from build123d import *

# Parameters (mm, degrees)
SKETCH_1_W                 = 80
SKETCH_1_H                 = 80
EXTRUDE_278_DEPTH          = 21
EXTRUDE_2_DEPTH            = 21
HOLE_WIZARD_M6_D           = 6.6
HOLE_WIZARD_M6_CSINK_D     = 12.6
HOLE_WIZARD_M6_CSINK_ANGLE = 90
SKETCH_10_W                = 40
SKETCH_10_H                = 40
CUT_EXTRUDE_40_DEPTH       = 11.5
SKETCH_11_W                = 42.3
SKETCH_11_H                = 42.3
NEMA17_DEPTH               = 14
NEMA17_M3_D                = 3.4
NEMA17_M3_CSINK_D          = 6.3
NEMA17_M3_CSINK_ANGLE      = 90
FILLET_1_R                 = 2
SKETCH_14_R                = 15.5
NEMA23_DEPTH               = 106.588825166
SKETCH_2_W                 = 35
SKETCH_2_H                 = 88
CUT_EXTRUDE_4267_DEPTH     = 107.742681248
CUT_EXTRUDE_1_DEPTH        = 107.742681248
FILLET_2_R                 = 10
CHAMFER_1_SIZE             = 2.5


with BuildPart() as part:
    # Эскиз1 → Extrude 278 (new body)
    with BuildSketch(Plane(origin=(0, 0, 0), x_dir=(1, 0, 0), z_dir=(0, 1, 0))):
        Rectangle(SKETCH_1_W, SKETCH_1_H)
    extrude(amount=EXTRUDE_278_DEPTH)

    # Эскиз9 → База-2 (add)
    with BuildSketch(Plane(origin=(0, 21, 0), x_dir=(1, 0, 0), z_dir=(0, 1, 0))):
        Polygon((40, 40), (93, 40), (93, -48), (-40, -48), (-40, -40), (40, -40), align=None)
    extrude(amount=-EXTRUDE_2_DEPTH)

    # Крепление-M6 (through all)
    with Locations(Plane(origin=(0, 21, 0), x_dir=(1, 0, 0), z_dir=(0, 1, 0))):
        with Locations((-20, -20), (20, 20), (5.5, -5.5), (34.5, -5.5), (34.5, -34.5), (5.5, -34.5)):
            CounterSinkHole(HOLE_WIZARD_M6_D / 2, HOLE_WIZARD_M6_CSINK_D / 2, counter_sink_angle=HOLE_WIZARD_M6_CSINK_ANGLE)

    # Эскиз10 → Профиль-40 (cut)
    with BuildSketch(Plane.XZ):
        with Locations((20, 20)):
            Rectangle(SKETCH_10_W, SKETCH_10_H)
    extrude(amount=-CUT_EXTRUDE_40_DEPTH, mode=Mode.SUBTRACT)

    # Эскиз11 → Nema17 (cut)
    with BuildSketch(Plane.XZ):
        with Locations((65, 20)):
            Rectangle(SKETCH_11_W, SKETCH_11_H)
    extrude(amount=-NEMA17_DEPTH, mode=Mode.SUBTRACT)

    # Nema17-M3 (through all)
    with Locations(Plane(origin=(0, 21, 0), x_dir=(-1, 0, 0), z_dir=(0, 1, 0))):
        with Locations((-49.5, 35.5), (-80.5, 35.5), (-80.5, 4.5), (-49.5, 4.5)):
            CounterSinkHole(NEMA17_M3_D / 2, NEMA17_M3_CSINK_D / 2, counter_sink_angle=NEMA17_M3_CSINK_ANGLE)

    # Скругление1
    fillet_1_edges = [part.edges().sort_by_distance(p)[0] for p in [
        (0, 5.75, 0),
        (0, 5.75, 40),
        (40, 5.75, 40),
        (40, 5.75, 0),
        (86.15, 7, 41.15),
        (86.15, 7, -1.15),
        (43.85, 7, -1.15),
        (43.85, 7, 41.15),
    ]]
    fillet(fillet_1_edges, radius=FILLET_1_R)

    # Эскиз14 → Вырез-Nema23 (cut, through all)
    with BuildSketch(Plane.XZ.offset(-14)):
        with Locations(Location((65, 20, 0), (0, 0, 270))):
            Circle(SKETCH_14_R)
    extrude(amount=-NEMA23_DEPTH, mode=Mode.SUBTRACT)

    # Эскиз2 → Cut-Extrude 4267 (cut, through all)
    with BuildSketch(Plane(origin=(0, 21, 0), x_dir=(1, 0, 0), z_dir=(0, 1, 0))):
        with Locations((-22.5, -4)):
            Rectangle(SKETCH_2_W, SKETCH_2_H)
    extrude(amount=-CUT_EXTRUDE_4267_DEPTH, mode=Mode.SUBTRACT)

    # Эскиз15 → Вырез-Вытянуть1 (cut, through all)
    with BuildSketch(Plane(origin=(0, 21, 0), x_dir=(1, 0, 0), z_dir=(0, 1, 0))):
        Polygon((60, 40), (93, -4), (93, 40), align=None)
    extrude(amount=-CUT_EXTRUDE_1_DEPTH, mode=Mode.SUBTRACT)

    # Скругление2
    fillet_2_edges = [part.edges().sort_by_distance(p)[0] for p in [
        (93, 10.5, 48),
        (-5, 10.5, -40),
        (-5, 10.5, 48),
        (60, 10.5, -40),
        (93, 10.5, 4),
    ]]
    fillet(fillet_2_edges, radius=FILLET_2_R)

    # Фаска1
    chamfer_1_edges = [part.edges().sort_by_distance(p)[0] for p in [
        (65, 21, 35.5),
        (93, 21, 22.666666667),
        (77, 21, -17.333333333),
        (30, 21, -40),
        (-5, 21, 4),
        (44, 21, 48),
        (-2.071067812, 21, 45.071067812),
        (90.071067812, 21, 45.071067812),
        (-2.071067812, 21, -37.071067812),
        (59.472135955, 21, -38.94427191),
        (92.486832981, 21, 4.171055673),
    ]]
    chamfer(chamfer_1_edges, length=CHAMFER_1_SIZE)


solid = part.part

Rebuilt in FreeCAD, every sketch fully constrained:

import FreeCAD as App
import Part
import Sketcher

V = App.Vector
Q = App.Units.Quantity


def edges_at(feature, points):
    """Names of the edges that pass closest to the given points."""
    edges = feature.Shape.Edges
    near = lambda p: min(range(len(edges)), key=lambda i: edges[i].distToShape(Part.Vertex(*p))[0])
    return sorted({f"Edge{near(p) + 1}" for p in points})

doc = App.newDocument("Part")
params = doc.addObject("Spreadsheet::Sheet", "Params")
for row, (alias, value) in enumerate([
    ("sketch1_width", "80 mm"),
    ("pad1_length", "21 mm"),
    ("sketch2_width", "53 mm"),
    ("sketch2_width2", "80 mm"),
    ("sketch2_height", "8 mm"),
    ("pad2_length", "21 mm"),
    ("sketch3_diameter", "6.6 mm"),
    ("hole_diameter", "6.6 mm"),
    ("hole_csink_diameter", "12.6 mm"),
    ("sketch4_width", "40 mm"),
    ("pocket1_length", "11.5 mm"),
    ("sketch5_width", "42.3 mm"),
    ("pocket2_length", "14 mm"),
    ("sketch6_diameter", "3.4 mm"),
    ("hole2_diameter", "3.4 mm"),
    ("hole2_csink_diameter", "6.3 mm"),
    ("fillet_radius", "2 mm"),
    ("sketch7_diameter", "31 mm"),
    ("sketch8_width", "35 mm"),
    ("sketch8_height", "88 mm"),
    ("sketch9_width", "33 mm"),
    ("sketch9_height", "44 mm"),
    ("fillet2_radius", "10 mm"),
    ("chamfer_size", "2.5 mm"),
], start=1):
    params.set(f"A{row}", alias)
    params.set(f"B{row}", "=" + value)
    params.setAlias(f"B{row}", alias)

body = doc.addObject("PartDesign::Body", "Body")

# Sketch on XZ plane
sketch1 = body.newObject("Sketcher::SketchObject", "Sketch")
sketch1.AttachmentSupport = (doc.getObject("XZ_Plane"), [""])
sketch1.MapMode = "FlatFace"
sketch1.addGeometry(Part.LineSegment(V(-40, -40, 0), V(-40, 40, 0)), False)
sketch1.addGeometry(Part.LineSegment(V(-40, 40, 0), V(40, 40, 0)), False)
sketch1.addGeometry(Part.LineSegment(V(40, 40, 0), V(40, -40, 0)), False)
sketch1.addGeometry(Part.LineSegment(V(40, -40, 0), V(-40, -40, 0)), False)
sketch1.addConstraint(Sketcher.Constraint("Coincident", 0, 2, 1, 1))
sketch1.addConstraint(Sketcher.Constraint("Coincident", 1, 2, 2, 1))
sketch1.addConstraint(Sketcher.Constraint("Coincident", 2, 2, 3, 1))
sketch1.addConstraint(Sketcher.Constraint("Coincident", 3, 2, 0, 1))
sketch1.addConstraint(Sketcher.Constraint("Vertical", 0))
sketch1.addConstraint(Sketcher.Constraint("Horizontal", 1))
sketch1.addConstraint(Sketcher.Constraint("Vertical", 2))
sketch1.addConstraint(Sketcher.Constraint("Horizontal", 3))
sketch1.addConstraint(Sketcher.Constraint("Symmetric", 0, 2, 2, 2, -1, 1))
sketch1.addConstraint(Sketcher.Constraint("Equal", 3, 0))
sketch1.addConstraint(Sketcher.Constraint("DistanceX", 1, 1, 1, 2, Q("80 mm")))
sketch1.setExpression("Constraints[10]", "Params.sketch1_width")
pad1 = body.newObject("PartDesign::Pad", "Pad")
pad1.Profile = sketch1
pad1.setExpression("Length", "Params.pad1_length")
pad1.Reversed = True

# Sketch on XZ plane
sketch2 = body.newObject("Sketcher::SketchObject", "Sketch001")
sketch2.AttachmentSupport = (doc.getObject("XZ_Plane"), [""])
sketch2.MapMode = "FlatFace"
sketch2.AttachmentOffset = App.Placement(V(0, 0, -21), App.Rotation())
sketch2.addGeometry(Part.LineSegment(V(93, -40, 0), V(40, -40, 0)), False)
sketch2.addGeometry(Part.LineSegment(V(40, -40, 0), V(40, 40, 0)), False)
sketch2.addGeometry(Part.LineSegment(V(40, 40, 0), V(-40, 40, 0)), False)
sketch2.addGeometry(Part.LineSegment(V(-40, 40, 0), V(-40, 48, 0)), False)
sketch2.addGeometry(Part.LineSegment(V(-40, 48, 0), V(93, 48, 0)), False)
sketch2.addGeometry(Part.LineSegment(V(93, 48, 0), V(93, -40, 0)), False)
sketch2.addConstraint(Sketcher.Constraint("Coincident", 0, 2, 1, 1))
sketch2.addConstraint(Sketcher.Constraint("Coincident", 1, 2, 2, 1))
sketch2.addConstraint(Sketcher.Constraint("Coincident", 2, 2, 3, 1))
sketch2.addConstraint(Sketcher.Constraint("Coincident", 3, 2, 4, 1))
sketch2.addConstraint(Sketcher.Constraint("Coincident", 4, 2, 5, 1))
sketch2.addConstraint(Sketcher.Constraint("Coincident", 5, 2, 0, 1))
sketch2.addConstraint(Sketcher.Constraint("Horizontal", 0))
sketch2.addConstraint(Sketcher.Constraint("Vertical", 1))
sketch2.addConstraint(Sketcher.Constraint("Horizontal", 2))
sketch2.addConstraint(Sketcher.Constraint("Vertical", 3))
sketch2.addConstraint(Sketcher.Constraint("Horizontal", 4))
sketch2.addConstraint(Sketcher.Constraint("Vertical", 5))
sketch2.addConstraint(Sketcher.Constraint("Symmetric", 0, 2, 2, 2, -1, 1))
sketch2.addConstraint(Sketcher.Constraint("Equal", 2, 1))
sketch2.addConstraint(Sketcher.Constraint("DistanceX", 0, 2, 0, 1, Q("53 mm")))
sketch2.addConstraint(Sketcher.Constraint("DistanceX", 2, 2, 2, 1, Q("80 mm")))
sketch2.addConstraint(Sketcher.Constraint("DistanceY", 3, 1, 3, 2, Q("8 mm")))
sketch2.setExpression("Constraints[14]", "Params.sketch2_width")
sketch2.setExpression("Constraints[15]", "Params.sketch2_width2")
sketch2.setExpression("Constraints[16]", "Params.sketch2_height")
pad2 = body.newObject("PartDesign::Pad", "Pad001")
pad2.Profile = sketch2
pad2.setExpression("Length", "Params.pad2_length")

# Sketch on XZ plane
sketch3 = body.newObject("Sketcher::SketchObject", "Sketch002")
sketch3.AttachmentSupport = (doc.getObject("XZ_Plane"), [""])
sketch3.MapMode = "FlatFace"
sketch3.AttachmentOffset = App.Placement(V(0, 0, -21), App.Rotation())
sketch3.addGeometry(Part.Circle(V(-20, 20, 0), V(0, 0, 1), 3.3), False)
sketch3.addGeometry(Part.Circle(V(20, -20, 0), V(0, 0, 1), 3.3), False)
sketch3.addGeometry(Part.Circle(V(5.5, 5.5, 0), V(0, 0, 1), 3.3), False)
sketch3.addGeometry(Part.Circle(V(34.5, 5.5, 0), V(0, 0, 1), 3.3), False)
sketch3.addGeometry(Part.Circle(V(34.5, 34.5, 0), V(0, 0, 1), 3.3), False)
sketch3.addGeometry(Part.Circle(V(5.5, 34.5, 0), V(0, 0, 1), 3.3), False)
sketch3.addConstraint(Sketcher.Constraint("Equal", 0, 1))
sketch3.addConstraint(Sketcher.Constraint("Equal", 1, 2))
sketch3.addConstraint(Sketcher.Constraint("Equal", 2, 3))
sketch3.addConstraint(Sketcher.Constraint("Equal", 3, 4))
sketch3.addConstraint(Sketcher.Constraint("Equal", 4, 5))
sketch3.addConstraint(Sketcher.Constraint("Symmetric", 0, 3, 1, 3, -1, 1))
sketch3.addConstraint(Sketcher.Constraint("Horizontal", 2, 3, 3, 3))
sketch3.addConstraint(Sketcher.Constraint("Horizontal", 4, 3, 5, 3))
sketch3.addConstraint(Sketcher.Constraint("Vertical", 3, 3, 4, 3))
sketch3.addConstraint(Sketcher.Constraint("Vertical", 2, 3, 5, 3))
sketch3.addConstraint(Sketcher.Constraint("Diameter", 0, Q("6.6 mm")))
sketch3.addConstraint(Sketcher.Constraint("DistanceX", 0, 3, -1, 1, Q("20 mm")))
sketch3.addConstraint(Sketcher.Constraint("DistanceY", -1, 1, 0, 3, Q("20 mm")))
sketch3.addConstraint(Sketcher.Constraint("DistanceX", 2, 3, 3, 3, Q("29 mm")))
sketch3.addConstraint(Sketcher.Constraint("DistanceY", 3, 3, 4, 3, Q("29 mm")))
sketch3.addConstraint(Sketcher.Constraint("DistanceX", -1, 1, 2, 3, Q("5.5 mm")))
sketch3.addConstraint(Sketcher.Constraint("DistanceY", -1, 1, 2, 3, Q("5.5 mm")))
sketch3.setExpression("Constraints[10]", "Params.sketch3_diameter")
doc.recompute()
hole = body.newObject("PartDesign::Hole", "Hole")
hole.Profile = sketch3
hole.ThreadType = "None"
hole.setExpression("Diameter", "Params.hole_diameter")
hole.DepthType = "ThroughAll"
hole.HoleCutType = "Countersink"
hole.setExpression("HoleCutDiameter", "Params.hole_csink_diameter")
hole.HoleCutCountersinkAngle = 90
hole.Reversed = True

# Sketch on XZ plane
sketch4 = body.newObject("Sketcher::SketchObject", "Sketch003")
sketch4.AttachmentSupport = (doc.getObject("XZ_Plane"), [""])
sketch4.MapMode = "FlatFace"
sketch4.addGeometry(Part.LineSegment(V(0, 40, 0), V(0, 0, 0)), False)
sketch4.addGeometry(Part.LineSegment(V(0, 0, 0), V(40, 0, 0)), False)
sketch4.addGeometry(Part.LineSegment(V(40, 0, 0), V(40, 40, 0)), False)
sketch4.addGeometry(Part.LineSegment(V(40, 40, 0), V(0, 40, 0)), False)
sketch4.addConstraint(Sketcher.Constraint("Coincident", 0, 2, 1, 1))
sketch4.addConstraint(Sketcher.Constraint("Coincident", 1, 2, 2, 1))
sketch4.addConstraint(Sketcher.Constraint("Coincident", 2, 2, 3, 1))
sketch4.addConstraint(Sketcher.Constraint("Coincident", 3, 2, 0, 1))
sketch4.addConstraint(Sketcher.Constraint("Vertical", 0))
sketch4.addConstraint(Sketcher.Constraint("Horizontal", 1))
sketch4.addConstraint(Sketcher.Constraint("Vertical", 2))
sketch4.addConstraint(Sketcher.Constraint("Horizontal", 3))
sketch4.addConstraint(Sketcher.Constraint("Coincident", 0, 2, -1, 1))
sketch4.addConstraint(Sketcher.Constraint("Equal", 3, 0))
sketch4.addConstraint(Sketcher.Constraint("DistanceX", 1, 1, 1, 2, Q("40 mm")))
sketch4.setExpression("Constraints[10]", "Params.sketch4_width")
pocket1 = body.newObject("PartDesign::Pocket", "Pocket")
pocket1.Profile = sketch4
pocket1.setExpression("Length", "Params.pocket1_length")

# Sketch on XZ plane
sketch5 = body.newObject("Sketcher::SketchObject", "Sketch004")
sketch5.AttachmentSupport = (doc.getObject("XZ_Plane"), [""])
sketch5.MapMode = "FlatFace"
sketch5.addGeometry(Part.LineSegment(V(44, 41, 0), V(44, -1, 0)), False)
sketch5.addGeometry(Part.LineSegment(V(44, -1, 0), V(86, -1, 0)), False)
sketch5.addGeometry(Part.LineSegment(V(86, -1, 0), V(86, 41, 0)), False)
sketch5.addGeometry(Part.LineSegment(V(86, 41, 0), V(44, 41, 0)), False)
sketch5.addConstraint(Sketcher.Constraint("Coincident", 0, 2, 1, 1))
sketch5.addConstraint(Sketcher.Constraint("Coincident", 1, 2, 2, 1))
sketch5.addConstraint(Sketcher.Constraint("Coincident", 2, 2, 3, 1))
sketch5.addConstraint(Sketcher.Constraint("Coincident", 3, 2, 0, 1))
sketch5.addConstraint(Sketcher.Constraint("Vertical", 0))
sketch5.addConstraint(Sketcher.Constraint("Horizontal", 1))
sketch5.addConstraint(Sketcher.Constraint("Vertical", 2))
sketch5.addConstraint(Sketcher.Constraint("Horizontal", 3))
sketch5.addConstraint(Sketcher.Constraint("Equal", 3, 0))
sketch5.addConstraint(Sketcher.Constraint("DistanceX", 1, 1, 1, 2, Q("42.3 mm")))
sketch5.addConstraint(Sketcher.Constraint("DistanceX", -1, 1, 0, 2, Q("43.85 mm")))
sketch5.addConstraint(Sketcher.Constraint("DistanceY", 0, 2, -1, 1, Q("1.15 mm")))
sketch5.setExpression("Constraints[9]", "Params.sketch5_width")
pocket2 = body.newObject("PartDesign::Pocket", "Pocket001")
pocket2.Profile = sketch5
pocket2.setExpression("Length", "Params.pocket2_length")

# Sketch on XZ plane
sketch6 = body.newObject("Sketcher::SketchObject", "Sketch005")
sketch6.AttachmentSupport = (doc.getObject("XZ_Plane"), [""])
sketch6.MapMode = "FlatFace"
sketch6.AttachmentOffset = App.Placement(V(0, 0, -21), App.Rotation())
sketch6.addGeometry(Part.Circle(V(49.5, 35.5, 0), V(0, 0, 1), 1.7), False)
sketch6.addGeometry(Part.Circle(V(80.5, 35.5, 0), V(0, 0, 1), 1.7), False)
sketch6.addGeometry(Part.Circle(V(80.5, 4.5, 0), V(0, 0, 1), 1.7), False)
sketch6.addGeometry(Part.Circle(V(49.5, 4.5, 0), V(0, 0, 1), 1.7), False)
sketch6.addConstraint(Sketcher.Constraint("Equal", 0, 1))
sketch6.addConstraint(Sketcher.Constraint("Equal", 1, 2))
sketch6.addConstraint(Sketcher.Constraint("Equal", 2, 3))
sketch6.addConstraint(Sketcher.Constraint("Horizontal", 0, 3, 1, 3))
sketch6.addConstraint(Sketcher.Constraint("Horizontal", 2, 3, 3, 3))
sketch6.addConstraint(Sketcher.Constraint("Vertical", 1, 3, 2, 3))
sketch6.addConstraint(Sketcher.Constraint("Vertical", 0, 3, 3, 3))
sketch6.addConstraint(Sketcher.Constraint("Diameter", 0, Q("3.4 mm")))
sketch6.addConstraint(Sketcher.Constraint("DistanceX", 0, 3, 1, 3, Q("31 mm")))
sketch6.addConstraint(Sketcher.Constraint("DistanceY", 2, 3, 1, 3, Q("31 mm")))
sketch6.addConstraint(Sketcher.Constraint("DistanceX", -1, 1, 0, 3, Q("49.5 mm")))
sketch6.addConstraint(Sketcher.Constraint("DistanceY", -1, 1, 0, 3, Q("35.5 mm")))
sketch6.setExpression("Constraints[7]", "Params.sketch6_diameter")
doc.recompute()
hole2 = body.newObject("PartDesign::Hole", "Hole001")
hole2.Profile = sketch6
hole2.ThreadType = "None"
hole2.setExpression("Diameter", "Params.hole2_diameter")
hole2.DepthType = "ThroughAll"
hole2.HoleCutType = "Countersink"
hole2.setExpression("HoleCutDiameter", "Params.hole2_csink_diameter")
hole2.HoleCutCountersinkAngle = 90
hole2.Reversed = True
doc.recompute()

fillet = body.newObject("PartDesign::Fillet", "Fillet")
fillet.Base = (hole2, edges_at(hole2, [
    (0, 5.75, 0),
    (0, 5.75, 40),
    (40, 5.75, 40),
    (40, 5.75, 0),
    (86.15, 7, 41.15),
    (86.15, 7, -1.15),
    (43.85, 7, -1.15),
    (43.85, 7, 41.15),
]))
fillet.setExpression("Radius", "Params.fillet_radius")

# Sketch on XZ plane
sketch7 = body.newObject("Sketcher::SketchObject", "Sketch006")
sketch7.AttachmentSupport = (doc.getObject("XZ_Plane"), [""])
sketch7.MapMode = "FlatFace"
sketch7.AttachmentOffset = App.Placement(V(0, 0, -14), App.Rotation())
sketch7.addGeometry(Part.Circle(V(65, 20, 0), V(0, 0, 1), 16), False)
sketch7.addConstraint(Sketcher.Constraint("Diameter", 0, Q("31 mm")))
sketch7.addConstraint(Sketcher.Constraint("DistanceX", -1, 1, 0, 3, Q("65 mm")))
sketch7.addConstraint(Sketcher.Constraint("DistanceY", -1, 1, 0, 3, Q("20 mm")))
sketch7.setExpression("Constraints[0]", "Params.sketch7_diameter")
pocket3 = body.newObject("PartDesign::Pocket", "Pocket002")
pocket3.Profile = sketch7
pocket3.Type = "ThroughAll"

# Sketch on XZ plane
sketch8 = body.newObject("Sketcher::SketchObject", "Sketch007")
sketch8.AttachmentSupport = (doc.getObject("XZ_Plane"), [""])
sketch8.MapMode = "FlatFace"
sketch8.AttachmentOffset = App.Placement(V(0, 0, -21), App.Rotation())
sketch8.addGeometry(Part.LineSegment(V(-40, -40, 0), V(-40, 48, 0)), False)
sketch8.addGeometry(Part.LineSegment(V(-40, 48, 0), V(-5, 48, 0)), False)
sketch8.addGeometry(Part.LineSegment(V(-5, 48, 0), V(-5, -40, 0)), False)
sketch8.addGeometry(Part.LineSegment(V(-5, -40, 0), V(-40, -40, 0)), False)
sketch8.addConstraint(Sketcher.Constraint("Coincident", 0, 2, 1, 1))
sketch8.addConstraint(Sketcher.Constraint("Coincident", 1, 2, 2, 1))
sketch8.addConstraint(Sketcher.Constraint("Coincident", 2, 2, 3, 1))
sketch8.addConstraint(Sketcher.Constraint("Coincident", 3, 2, 0, 1))
sketch8.addConstraint(Sketcher.Constraint("Vertical", 0))
sketch8.addConstraint(Sketcher.Constraint("Horizontal", 1))
sketch8.addConstraint(Sketcher.Constraint("Vertical", 2))
sketch8.addConstraint(Sketcher.Constraint("Horizontal", 3))
sketch8.addConstraint(Sketcher.Constraint("DistanceX", 1, 1, 1, 2, Q("35 mm")))
sketch8.addConstraint(Sketcher.Constraint("DistanceY", 0, 1, 0, 2, Q("88 mm")))
sketch8.addConstraint(Sketcher.Constraint("DistanceX", 0, 2, -1, 1, Q("40 mm")))
sketch8.addConstraint(Sketcher.Constraint("DistanceY", -1, 1, 0, 2, Q("48 mm")))
sketch8.setExpression("Constraints[8]", "Params.sketch8_width")
sketch8.setExpression("Constraints[9]", "Params.sketch8_height")
pocket4 = body.newObject("PartDesign::Pocket", "Pocket003")
pocket4.Profile = sketch8
pocket4.Type = "ThroughAll"
pocket4.Reversed = True

# Sketch on XZ plane
sketch9 = body.newObject("Sketcher::SketchObject", "Sketch008")
sketch9.AttachmentSupport = (doc.getObject("XZ_Plane"), [""])
sketch9.MapMode = "FlatFace"
sketch9.AttachmentOffset = App.Placement(V(0, 0, -21), App.Rotation())
sketch9.addGeometry(Part.LineSegment(V(60, -40, 0), V(93, 4, 0)), False)
sketch9.addGeometry(Part.LineSegment(V(93, 4, 0), V(93, -40, 0)), False)
sketch9.addGeometry(Part.LineSegment(V(93, -40, 0), V(60, -40, 0)), False)
sketch9.addConstraint(Sketcher.Constraint("Coincident", 0, 2, 1, 1))
sketch9.addConstraint(Sketcher.Constraint("Coincident", 1, 2, 2, 1))
sketch9.addConstraint(Sketcher.Constraint("Coincident", 2, 2, 0, 1))
sketch9.addConstraint(Sketcher.Constraint("Vertical", 1))
sketch9.addConstraint(Sketcher.Constraint("Horizontal", 2))
sketch9.addConstraint(Sketcher.Constraint("DistanceX", 2, 2, 2, 1, Q("33 mm")))
sketch9.addConstraint(Sketcher.Constraint("DistanceY", 1, 2, 1, 1, Q("44 mm")))
sketch9.addConstraint(Sketcher.Constraint("DistanceX", -1, 1, 0, 2, Q("93 mm")))
sketch9.addConstraint(Sketcher.Constraint("DistanceY", -1, 1, 0, 2, Q("4 mm")))
sketch9.setExpression("Constraints[5]", "Params.sketch9_width")
sketch9.setExpression("Constraints[6]", "Params.sketch9_height")
pocket5 = body.newObject("PartDesign::Pocket", "Pocket004")
pocket5.Profile = sketch9
pocket5.Type = "ThroughAll"
pocket5.Reversed = True
doc.recompute()

fillet2 = body.newObject("PartDesign::Fillet", "Fillet001")
fillet2.Base = (pocket5, edges_at(pocket5, [
    (93, 10.5, 48),
    (-5, 10.5, -40),
    (-5, 10.5, 48),
    (60, 10.5, -40),
    (93, 10.5, 4),
]))
fillet2.setExpression("Radius", "Params.fillet2_radius")
doc.recompute()

chamfer = body.newObject("PartDesign::Chamfer", "Chamfer")
chamfer.Base = (fillet2, edges_at(fillet2, [
    (65, 21, 35.5),
    (93, 21, 22.667),
    (77, 21, -17.333),
    (30, 21, -40),
    (-5, 21, 4),
    (44, 21, 48),
    (-2.071, 21, 45.071),
    (90.071, 21, 45.071),
    (-2.071, 21, -37.071),
    (59.472, 21, -38.944),
    (92.487, 21, 4.171),
]))
chamfer.setExpression("Size", "Params.chamfer_size")

doc.recompute()
